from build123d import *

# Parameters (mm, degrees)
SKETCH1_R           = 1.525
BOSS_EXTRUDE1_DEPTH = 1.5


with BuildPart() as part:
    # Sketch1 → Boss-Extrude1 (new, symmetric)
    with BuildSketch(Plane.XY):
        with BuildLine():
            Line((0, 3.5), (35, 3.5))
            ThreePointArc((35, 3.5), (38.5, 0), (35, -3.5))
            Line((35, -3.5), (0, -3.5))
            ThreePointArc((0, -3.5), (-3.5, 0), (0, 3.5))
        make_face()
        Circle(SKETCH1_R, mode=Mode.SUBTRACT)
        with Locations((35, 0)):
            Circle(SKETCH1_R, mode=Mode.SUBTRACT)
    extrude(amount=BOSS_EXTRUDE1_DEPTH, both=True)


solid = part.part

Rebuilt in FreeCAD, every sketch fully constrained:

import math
import FreeCAD as App
import Part
import Sketcher

V = App.Vector
Q = App.Units.Quantity

doc = App.newDocument("Part")
params = doc.addObject("Spreadsheet::Sheet", "Params")
for row, (alias, value) in enumerate([
    ("sketch1_radius", "3.5 mm"),
    ("sketch1_diameter", "3.05 mm"),
    ("sketch1_width", "35 mm"),
    ("pad1_length", "3 mm"),
], start=1):
    params.set(f"A{row}", alias)
    params.set(f"B{row}", "=" + value)
    params.setAlias(f"B{row}", alias)

body = doc.addObject("PartDesign::Body", "Body")

# Sketch on XY plane
sketch1 = body.newObject("Sketcher::SketchObject", "Sketch")
sketch1.AttachmentSupport = (doc.getObject("XY_Plane"), [""])
sketch1.MapMode = "FlatFace"
sketch1.addGeometry([
    Part.LineSegment(V(35, 3.5, 0), V(0, 3.5, 0)),  # 0
    Part.ArcOfCircle(Part.Circle(V(0, 0, 0), V(0, 0, 1), 3.5), math.radians(90), math.radians(270)),  # 1
    Part.LineSegment(V(0, -3.5, 0), V(35, -3.5, 0)),  # 2
    Part.ArcOfCircle(Part.Circle(V(35, 0, 0), V(0, 0, 1), 3.5), math.radians(-90), math.radians(90)),  # 3
    Part.Circle(V(35, 0, 0), V(0, 0, 1), 1.5),  # 4
    Part.Circle(V(0, 0, 0), V(0, 0, 1), 1.5),  # 5
], False)
sketch1.addConstraint([
    Sketcher.Constraint("Tangent", 0, 2, 1, 1),
    Sketcher.Constraint("Tangent", 1, 2, 2, 1),
    Sketcher.Constraint("Tangent", 2, 2, 3, 1),
    Sketcher.Constraint("Tangent", 3, 2, 0, 1),
    Sketcher.Constraint("Horizontal", 0),
    Sketcher.Constraint("Horizontal", 2),
    Sketcher.Constraint("Coincident", 1, 3, -1, 1),
    Sketcher.Constraint("Coincident", 5, 3, -1, 1),
    Sketcher.Constraint("Coincident", 4, 3, 3, 3),
    Sketcher.Constraint("Equal", 4, 5),
    Sketcher.Constraint("Radius", 1, Q("3.5 mm")),
    Sketcher.Constraint("Diameter", 4, Q("3.05 mm")),
    Sketcher.Constraint("DistanceX", 0, 2, 0, 1, Q("35 mm")),
])
sketch1.setExpression("Constraints[10]", "Params.sketch1_radius")
sketch1.setExpression("Constraints[11]", "Params.sketch1_diameter")
sketch1.setExpression("Constraints[12]", "Params.sketch1_width")
pad1 = body.newObject("PartDesign::Pad", "Pad")
pad1.Profile = sketch1
pad1.setExpression("Length", "Params.pad1_length")
pad1.Midplane = True

doc.recompute()
